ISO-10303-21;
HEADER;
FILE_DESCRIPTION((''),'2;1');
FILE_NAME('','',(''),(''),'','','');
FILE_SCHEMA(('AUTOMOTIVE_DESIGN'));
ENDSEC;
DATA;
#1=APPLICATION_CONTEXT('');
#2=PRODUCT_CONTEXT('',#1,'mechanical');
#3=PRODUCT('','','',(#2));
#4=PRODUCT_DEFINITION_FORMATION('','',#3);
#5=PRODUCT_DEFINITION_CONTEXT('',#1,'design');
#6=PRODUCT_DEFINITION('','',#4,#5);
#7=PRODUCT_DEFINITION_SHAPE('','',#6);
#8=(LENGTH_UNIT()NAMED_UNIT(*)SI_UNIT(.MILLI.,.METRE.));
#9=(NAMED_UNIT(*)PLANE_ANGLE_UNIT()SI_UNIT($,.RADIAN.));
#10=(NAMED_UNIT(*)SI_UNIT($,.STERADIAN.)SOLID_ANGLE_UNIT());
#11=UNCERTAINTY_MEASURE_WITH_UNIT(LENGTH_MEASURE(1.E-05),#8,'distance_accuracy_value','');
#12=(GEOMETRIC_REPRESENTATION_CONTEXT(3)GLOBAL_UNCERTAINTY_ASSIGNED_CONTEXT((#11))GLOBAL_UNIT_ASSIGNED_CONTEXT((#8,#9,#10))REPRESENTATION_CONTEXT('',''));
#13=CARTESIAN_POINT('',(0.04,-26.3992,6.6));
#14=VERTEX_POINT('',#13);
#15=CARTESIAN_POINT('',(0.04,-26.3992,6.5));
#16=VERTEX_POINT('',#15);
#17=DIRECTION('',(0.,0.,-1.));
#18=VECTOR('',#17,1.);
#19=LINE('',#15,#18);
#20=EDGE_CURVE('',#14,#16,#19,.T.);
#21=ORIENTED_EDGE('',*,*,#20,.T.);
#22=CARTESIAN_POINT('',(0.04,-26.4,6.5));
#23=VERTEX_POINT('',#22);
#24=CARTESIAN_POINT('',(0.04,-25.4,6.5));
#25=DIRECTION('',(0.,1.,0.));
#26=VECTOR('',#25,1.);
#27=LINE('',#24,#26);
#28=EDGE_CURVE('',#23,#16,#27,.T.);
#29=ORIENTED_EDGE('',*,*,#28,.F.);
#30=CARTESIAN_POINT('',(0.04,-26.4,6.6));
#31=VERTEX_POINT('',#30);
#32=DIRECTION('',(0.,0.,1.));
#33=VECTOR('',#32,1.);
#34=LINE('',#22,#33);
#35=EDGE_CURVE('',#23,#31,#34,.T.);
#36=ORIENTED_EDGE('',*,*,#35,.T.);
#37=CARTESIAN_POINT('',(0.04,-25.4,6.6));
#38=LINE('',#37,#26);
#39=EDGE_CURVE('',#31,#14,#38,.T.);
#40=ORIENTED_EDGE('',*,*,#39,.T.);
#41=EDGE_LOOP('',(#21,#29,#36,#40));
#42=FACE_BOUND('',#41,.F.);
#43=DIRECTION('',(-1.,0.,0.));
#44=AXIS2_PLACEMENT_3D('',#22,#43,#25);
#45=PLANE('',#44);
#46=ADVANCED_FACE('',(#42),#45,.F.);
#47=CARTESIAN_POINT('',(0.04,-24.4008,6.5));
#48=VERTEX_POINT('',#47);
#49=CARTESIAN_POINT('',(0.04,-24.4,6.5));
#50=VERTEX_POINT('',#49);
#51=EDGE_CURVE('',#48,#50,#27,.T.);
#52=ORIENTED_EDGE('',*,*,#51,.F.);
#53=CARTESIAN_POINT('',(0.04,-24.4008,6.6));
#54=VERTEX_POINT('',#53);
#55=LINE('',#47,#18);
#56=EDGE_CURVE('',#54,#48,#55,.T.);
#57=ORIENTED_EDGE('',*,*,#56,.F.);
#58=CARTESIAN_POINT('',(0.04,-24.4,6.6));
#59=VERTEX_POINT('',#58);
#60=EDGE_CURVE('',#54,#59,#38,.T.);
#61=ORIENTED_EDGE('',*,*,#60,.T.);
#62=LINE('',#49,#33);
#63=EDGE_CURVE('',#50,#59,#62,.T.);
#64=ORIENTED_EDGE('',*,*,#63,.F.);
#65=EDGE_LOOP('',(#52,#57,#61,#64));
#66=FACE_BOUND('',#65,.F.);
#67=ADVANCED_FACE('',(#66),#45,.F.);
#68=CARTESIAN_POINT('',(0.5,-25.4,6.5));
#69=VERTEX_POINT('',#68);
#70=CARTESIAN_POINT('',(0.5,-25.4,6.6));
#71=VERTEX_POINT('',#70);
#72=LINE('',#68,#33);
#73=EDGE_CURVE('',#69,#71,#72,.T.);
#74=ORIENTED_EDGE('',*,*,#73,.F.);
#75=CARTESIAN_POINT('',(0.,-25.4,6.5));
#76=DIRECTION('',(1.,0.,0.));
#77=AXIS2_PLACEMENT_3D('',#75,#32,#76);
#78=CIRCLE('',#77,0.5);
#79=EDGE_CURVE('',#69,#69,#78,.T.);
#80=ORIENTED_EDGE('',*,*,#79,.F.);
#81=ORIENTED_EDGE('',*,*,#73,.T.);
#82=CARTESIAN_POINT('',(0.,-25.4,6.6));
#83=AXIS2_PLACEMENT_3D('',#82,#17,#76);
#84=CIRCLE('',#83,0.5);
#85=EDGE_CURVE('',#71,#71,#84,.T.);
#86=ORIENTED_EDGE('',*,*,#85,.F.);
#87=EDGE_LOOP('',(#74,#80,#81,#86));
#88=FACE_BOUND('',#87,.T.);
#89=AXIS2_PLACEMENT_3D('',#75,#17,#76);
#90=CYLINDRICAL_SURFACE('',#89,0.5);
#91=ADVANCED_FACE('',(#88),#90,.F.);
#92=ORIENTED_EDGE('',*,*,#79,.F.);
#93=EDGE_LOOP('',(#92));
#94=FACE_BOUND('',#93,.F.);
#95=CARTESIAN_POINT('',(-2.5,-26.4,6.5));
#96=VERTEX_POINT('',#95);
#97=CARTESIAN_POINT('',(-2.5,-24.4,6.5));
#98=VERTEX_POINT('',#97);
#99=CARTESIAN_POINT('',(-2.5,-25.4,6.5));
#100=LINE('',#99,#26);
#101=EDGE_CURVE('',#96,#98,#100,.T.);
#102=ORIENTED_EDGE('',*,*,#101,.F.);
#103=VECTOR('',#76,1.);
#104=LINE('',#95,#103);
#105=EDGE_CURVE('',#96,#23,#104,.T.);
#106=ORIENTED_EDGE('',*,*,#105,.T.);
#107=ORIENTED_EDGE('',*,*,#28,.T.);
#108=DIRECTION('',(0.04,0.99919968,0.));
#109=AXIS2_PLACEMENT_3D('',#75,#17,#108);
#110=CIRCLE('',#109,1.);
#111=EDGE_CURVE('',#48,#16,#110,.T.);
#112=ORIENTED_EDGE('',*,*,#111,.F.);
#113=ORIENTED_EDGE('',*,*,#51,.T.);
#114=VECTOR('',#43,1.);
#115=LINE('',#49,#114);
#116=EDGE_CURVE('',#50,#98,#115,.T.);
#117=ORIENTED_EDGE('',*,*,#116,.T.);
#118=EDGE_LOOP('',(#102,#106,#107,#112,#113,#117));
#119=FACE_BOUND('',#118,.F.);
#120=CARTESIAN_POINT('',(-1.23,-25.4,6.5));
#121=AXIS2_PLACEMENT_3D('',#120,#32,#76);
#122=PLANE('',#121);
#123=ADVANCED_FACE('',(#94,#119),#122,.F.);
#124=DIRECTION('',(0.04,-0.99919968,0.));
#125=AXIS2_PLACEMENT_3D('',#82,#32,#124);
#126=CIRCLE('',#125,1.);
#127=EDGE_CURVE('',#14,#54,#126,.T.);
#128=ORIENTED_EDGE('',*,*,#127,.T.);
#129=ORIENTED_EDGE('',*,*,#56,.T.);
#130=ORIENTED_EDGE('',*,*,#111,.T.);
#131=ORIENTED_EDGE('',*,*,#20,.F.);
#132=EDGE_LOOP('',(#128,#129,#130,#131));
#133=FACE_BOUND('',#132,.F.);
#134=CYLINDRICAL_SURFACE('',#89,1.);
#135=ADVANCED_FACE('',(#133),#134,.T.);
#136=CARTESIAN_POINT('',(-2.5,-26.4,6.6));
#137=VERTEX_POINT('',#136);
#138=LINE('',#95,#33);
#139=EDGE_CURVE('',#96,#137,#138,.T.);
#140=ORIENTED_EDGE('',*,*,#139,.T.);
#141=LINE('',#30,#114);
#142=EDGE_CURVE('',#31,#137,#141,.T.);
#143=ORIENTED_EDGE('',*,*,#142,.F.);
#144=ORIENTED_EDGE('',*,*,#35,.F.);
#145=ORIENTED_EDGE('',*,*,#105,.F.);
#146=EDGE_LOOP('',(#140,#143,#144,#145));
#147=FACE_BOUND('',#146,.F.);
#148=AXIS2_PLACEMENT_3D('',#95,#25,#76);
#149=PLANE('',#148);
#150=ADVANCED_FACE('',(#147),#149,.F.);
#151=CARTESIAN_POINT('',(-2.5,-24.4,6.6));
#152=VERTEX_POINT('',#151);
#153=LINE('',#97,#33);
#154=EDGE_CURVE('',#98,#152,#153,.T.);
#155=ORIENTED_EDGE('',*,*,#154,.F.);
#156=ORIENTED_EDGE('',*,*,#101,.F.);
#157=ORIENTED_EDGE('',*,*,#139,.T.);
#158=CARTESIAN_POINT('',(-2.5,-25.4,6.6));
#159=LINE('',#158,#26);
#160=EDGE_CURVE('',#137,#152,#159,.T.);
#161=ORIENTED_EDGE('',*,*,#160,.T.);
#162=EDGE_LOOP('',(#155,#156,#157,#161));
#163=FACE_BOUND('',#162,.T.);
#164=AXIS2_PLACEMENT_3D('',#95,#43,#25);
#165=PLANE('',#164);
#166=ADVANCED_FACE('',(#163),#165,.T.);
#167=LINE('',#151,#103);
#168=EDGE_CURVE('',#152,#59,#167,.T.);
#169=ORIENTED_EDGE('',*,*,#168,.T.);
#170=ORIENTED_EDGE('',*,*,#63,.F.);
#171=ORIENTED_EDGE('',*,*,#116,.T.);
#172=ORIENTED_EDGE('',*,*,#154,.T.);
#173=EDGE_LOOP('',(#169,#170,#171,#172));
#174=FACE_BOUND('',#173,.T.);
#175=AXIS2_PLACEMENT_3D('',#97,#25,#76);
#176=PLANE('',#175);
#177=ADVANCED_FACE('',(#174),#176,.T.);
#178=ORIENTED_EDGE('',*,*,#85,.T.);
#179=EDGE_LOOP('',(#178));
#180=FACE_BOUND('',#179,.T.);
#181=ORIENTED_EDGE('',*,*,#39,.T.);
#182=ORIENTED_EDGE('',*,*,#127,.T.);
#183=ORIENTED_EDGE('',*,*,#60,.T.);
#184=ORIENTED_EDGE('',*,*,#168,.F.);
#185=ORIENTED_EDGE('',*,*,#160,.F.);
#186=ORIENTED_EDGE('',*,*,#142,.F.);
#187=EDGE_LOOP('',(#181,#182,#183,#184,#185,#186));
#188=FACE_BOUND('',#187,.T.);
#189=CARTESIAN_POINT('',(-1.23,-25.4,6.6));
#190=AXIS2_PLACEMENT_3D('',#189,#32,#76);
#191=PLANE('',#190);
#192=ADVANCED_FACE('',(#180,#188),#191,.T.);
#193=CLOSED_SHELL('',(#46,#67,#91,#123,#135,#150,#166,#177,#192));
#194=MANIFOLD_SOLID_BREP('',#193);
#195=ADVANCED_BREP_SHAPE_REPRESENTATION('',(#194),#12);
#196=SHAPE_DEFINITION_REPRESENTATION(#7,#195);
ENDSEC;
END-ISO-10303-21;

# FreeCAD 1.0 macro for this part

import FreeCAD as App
import Part
import Sketcher

doc = App.newDocument("Part")
body = doc.addObject("PartDesign::Body", "Body")

sketch1 = body.newObject("Sketcher::SketchObject", "Sketch")
sketch1.AttachmentSupport = (doc.getObject("XY_Plane"), [""])
sketch1.MapMode = "FlatFace"
sketch1.AttachmentOffset = App.Placement(App.Vector(0, 0, 1), App.Rotation())
sketch1.addGeometry(Part.Circle(App.Vector(0, 0, 0), App.Vector(0, 0, 1), 0.5), False)
sketch1.addConstraint([
    Sketcher.Constraint("Coincident", 0, 3, -1, 1),
    Sketcher.Constraint("Diameter", 0, 1.0),
])
pad1 = body.newObject("PartDesign::Pad", "Pad")
pad1.Profile = sketch1
pad1.Length = 0.1
body2 = doc.addObject("PartDesign::Body", "Body001")

sketch2 = body2.newObject("Sketcher::SketchObject", "Sketch001")
sketch2.AttachmentSupport = (doc.getObject("XY_Plane001"), [""])
sketch2.MapMode = "FlatFace"
sketch2.AttachmentOffset = App.Placement(App.Vector(0, 0, 1), App.Rotation())
sketch2.addGeometry([
    Part.LineSegment(App.Vector(-2.5, 1, 0), App.Vector(-2.5, -1, 0)),
    Part.LineSegment(App.Vector(-2.5, -1, 0), App.Vector(0.04, -1, 0)),
    Part.LineSegment(App.Vector(0.04, -1, 0), App.Vector(0.04, 1, 0)),
    Part.LineSegment(App.Vector(0.04, 1, 0), App.Vector(-2.5, 1, 0)),
], False)
sketch2.addConstraint([
    Sketcher.Constraint("Coincident", 0, 2, 1, 1),
    Sketcher.Constraint("Coincident", 1, 2, 2, 1),
    Sketcher.Constraint("Coincident", 2, 2, 3, 1),
    Sketcher.Constraint("Coincident", 3, 2, 0, 1),
    Sketcher.Constraint("Vertical", 0),
    Sketcher.Constraint("Horizontal", 1),
    Sketcher.Constraint("Vertical", 2),
    Sketcher.Constraint("Horizontal", 3),
    Sketcher.Constraint("DistanceY", 0, 2, 0, 1, 2.0),
    Sketcher.Constraint("DistanceY", 0, 2, -1, 1, 1.0),
    Sketcher.Constraint("DistanceX", 1, 1, 1, 2, 2.54),
    Sketcher.Constraint("DistanceX", 0, 2, -1, 1, 2.5),
])
pad2 = body2.newObject("PartDesign::Pad", "Pad001")
pad2.Profile = sketch2
pad2.Length = 0.1
doc.recompute()

boolean = body2.newObject("PartDesign::Boolean", "Boolean")
boolean.Type = "Cut"
boolean.addObjects([body])
body3 = doc.addObject("PartDesign::Body", "Body002")

sketch3 = body3.newObject("Sketcher::SketchObject", "Sketch002")
sketch3.AttachmentSupport = (doc.getObject("XY_Plane002"), [""])
sketch3.MapMode = "FlatFace"
sketch3.AttachmentOffset = App.Placement(App.Vector(0, 0, 1), App.Rotation())
sketch3.addGeometry(Part.Circle(App.Vector(0, 0, 0), App.Vector(0, 0, 1), 0.5), False)
sketch3.addConstraint([
    Sketcher.Constraint("Coincident", 0, 3, -1, 1),
    Sketcher.Constraint("Diameter", 0, 1.0),
])
pad3 = body3.newObject("PartDesign::Pad", "Pad002")
pad3.Profile = sketch3
pad3.Length = 0.1
body4 = doc.addObject("PartDesign::Body", "Body003")

sketch4 = body4.newObject("Sketcher::SketchObject", "Sketch003")
sketch4.AttachmentSupport = (doc.getObject("XY_Plane003"), [""])
sketch4.MapMode = "FlatFace"
sketch4.AttachmentOffset = App.Placement(App.Vector(0, 0, 1), App.Rotation())
sketch4.addGeometry(Part.Circle(App.Vector(0, 0, 0), App.Vector(0, 0, 1), 1), False)
sketch4.addConstraint([
    Sketcher.Constraint("Coincident", 0, 3, -1, 1),
    Sketcher.Constraint("Diameter", 0, 2.0),
])
pad4 = body4.newObject("PartDesign::Pad", "Pad003")
pad4.Profile = sketch4
pad4.Length = 0.1
doc.recompute()

boolean2 = body4.newObject("PartDesign::Boolean", "Boolean001")
boolean2.Type = "Cut"
boolean2.addObjects([body3])
doc.recompute()

boolean3 = body4.newObject("PartDesign::Boolean", "Boolean002")
boolean3.Type = "Fuse"
boolean3.addObjects([body2])
body5 = doc.addObject("PartDesign::Body", "Body004")
doc.recompute()

body4.Placement = App.Placement(App.Vector(0, -25.4, 5.5), App.Rotation(App.Vector(0, 0, 1), 0))
boolean4 = body5.newObject("PartDesign::Boolean", "Boolean003")
boolean4.Type = "Fuse"
boolean4.addObjects([body4])

doc.recompute()
